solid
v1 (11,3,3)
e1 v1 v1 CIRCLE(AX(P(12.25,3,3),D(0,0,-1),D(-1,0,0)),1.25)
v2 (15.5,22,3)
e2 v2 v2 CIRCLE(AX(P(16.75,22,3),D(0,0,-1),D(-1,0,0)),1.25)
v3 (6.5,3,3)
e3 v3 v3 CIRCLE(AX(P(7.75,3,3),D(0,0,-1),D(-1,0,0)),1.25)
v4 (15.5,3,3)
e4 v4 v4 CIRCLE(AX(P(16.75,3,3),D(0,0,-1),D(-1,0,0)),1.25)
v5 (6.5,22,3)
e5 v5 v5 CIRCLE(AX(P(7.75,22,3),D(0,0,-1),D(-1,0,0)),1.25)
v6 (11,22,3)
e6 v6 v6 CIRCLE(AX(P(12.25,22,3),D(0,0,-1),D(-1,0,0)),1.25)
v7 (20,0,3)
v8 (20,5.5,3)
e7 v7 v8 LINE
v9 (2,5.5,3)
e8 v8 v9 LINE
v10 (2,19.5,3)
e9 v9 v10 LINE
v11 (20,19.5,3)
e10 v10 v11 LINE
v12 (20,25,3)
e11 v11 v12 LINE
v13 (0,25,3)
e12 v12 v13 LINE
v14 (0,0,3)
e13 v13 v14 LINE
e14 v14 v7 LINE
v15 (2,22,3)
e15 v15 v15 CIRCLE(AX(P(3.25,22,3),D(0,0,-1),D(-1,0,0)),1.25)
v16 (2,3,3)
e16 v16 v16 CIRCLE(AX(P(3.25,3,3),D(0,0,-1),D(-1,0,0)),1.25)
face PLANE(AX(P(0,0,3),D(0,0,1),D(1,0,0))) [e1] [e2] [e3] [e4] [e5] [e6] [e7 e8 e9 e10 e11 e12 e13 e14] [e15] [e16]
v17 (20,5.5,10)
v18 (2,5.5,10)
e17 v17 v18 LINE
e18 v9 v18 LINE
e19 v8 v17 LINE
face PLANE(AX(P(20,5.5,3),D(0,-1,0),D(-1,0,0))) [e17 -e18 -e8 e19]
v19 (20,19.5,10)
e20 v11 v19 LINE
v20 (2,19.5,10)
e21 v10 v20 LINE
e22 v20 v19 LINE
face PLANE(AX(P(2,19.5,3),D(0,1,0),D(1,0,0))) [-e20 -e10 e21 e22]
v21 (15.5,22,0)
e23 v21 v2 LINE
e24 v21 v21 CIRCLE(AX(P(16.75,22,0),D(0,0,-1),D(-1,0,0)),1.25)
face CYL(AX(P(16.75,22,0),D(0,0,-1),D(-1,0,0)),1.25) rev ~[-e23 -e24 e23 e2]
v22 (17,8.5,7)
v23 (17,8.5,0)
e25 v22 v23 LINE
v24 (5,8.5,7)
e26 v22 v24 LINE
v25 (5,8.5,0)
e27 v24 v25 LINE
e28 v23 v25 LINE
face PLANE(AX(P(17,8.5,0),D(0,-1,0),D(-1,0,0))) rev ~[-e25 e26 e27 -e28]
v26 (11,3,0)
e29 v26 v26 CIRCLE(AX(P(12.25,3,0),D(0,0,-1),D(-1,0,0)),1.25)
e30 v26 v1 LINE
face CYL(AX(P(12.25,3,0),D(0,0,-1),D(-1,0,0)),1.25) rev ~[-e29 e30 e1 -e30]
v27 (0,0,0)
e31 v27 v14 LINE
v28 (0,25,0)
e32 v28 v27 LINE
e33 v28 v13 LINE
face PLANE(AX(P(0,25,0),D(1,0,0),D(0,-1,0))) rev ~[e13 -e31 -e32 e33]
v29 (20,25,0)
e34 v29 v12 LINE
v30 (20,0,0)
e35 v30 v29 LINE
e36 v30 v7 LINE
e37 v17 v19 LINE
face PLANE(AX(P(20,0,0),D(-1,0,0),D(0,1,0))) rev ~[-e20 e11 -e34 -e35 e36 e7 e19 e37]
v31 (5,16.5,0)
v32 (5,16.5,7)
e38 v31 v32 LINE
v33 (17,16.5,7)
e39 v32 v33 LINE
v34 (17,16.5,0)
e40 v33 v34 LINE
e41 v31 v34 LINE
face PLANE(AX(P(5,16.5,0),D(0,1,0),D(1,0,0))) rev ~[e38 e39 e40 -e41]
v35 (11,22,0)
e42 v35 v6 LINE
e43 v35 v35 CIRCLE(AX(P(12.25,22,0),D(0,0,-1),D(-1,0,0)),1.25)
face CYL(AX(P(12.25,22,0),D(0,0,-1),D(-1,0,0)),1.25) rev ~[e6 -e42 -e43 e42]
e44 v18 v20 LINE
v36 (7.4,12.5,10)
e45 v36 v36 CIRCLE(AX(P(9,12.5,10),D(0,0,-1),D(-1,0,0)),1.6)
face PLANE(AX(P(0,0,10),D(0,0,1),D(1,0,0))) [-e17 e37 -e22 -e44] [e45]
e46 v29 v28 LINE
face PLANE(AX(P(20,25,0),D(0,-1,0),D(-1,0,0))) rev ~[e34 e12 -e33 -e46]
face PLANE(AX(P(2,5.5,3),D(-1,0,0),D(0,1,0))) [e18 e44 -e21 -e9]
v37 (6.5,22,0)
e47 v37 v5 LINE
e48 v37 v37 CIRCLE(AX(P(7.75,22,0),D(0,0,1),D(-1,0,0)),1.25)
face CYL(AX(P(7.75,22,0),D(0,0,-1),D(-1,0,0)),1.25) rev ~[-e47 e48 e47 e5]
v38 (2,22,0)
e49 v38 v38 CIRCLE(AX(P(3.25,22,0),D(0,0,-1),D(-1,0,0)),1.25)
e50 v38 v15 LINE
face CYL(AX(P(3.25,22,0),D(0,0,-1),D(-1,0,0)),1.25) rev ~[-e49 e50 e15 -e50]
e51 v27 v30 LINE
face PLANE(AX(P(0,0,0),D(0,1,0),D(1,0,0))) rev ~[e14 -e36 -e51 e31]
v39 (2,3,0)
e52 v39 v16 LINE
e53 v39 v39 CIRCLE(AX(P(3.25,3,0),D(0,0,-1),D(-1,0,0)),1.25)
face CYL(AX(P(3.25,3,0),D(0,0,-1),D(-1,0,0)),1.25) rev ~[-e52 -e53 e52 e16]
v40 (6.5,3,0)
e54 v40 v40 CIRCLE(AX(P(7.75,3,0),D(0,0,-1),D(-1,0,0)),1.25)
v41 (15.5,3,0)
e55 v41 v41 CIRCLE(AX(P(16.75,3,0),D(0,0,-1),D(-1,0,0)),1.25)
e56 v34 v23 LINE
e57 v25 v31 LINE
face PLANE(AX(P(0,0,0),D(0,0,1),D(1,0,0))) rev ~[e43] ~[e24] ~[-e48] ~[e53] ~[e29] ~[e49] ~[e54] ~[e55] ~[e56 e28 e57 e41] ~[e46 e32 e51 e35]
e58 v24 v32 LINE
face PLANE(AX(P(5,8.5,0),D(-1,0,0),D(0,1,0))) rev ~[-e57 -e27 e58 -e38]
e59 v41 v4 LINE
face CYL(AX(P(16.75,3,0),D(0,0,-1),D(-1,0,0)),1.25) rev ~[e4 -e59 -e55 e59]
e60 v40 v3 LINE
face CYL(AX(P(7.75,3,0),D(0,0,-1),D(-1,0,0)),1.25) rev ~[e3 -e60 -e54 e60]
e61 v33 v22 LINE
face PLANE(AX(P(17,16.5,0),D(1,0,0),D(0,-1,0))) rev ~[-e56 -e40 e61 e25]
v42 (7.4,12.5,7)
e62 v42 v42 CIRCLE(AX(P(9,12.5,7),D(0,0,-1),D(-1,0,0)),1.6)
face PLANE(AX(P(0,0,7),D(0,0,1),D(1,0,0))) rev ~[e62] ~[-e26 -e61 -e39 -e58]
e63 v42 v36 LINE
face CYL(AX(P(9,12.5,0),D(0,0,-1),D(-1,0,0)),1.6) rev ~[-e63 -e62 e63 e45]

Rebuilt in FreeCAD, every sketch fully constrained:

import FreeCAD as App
import Part
import Sketcher
from FreeCAD import Vector

doc = App.newDocument("Part")
body = doc.addObject("PartDesign::Body", "Body")

# Sketch on XY plane
sketch1 = body.newObject("Sketcher::SketchObject", "Sketch")
sketch1.AttachmentSupport = (doc.getObject("XY_Plane"), [""])
sketch1.MapMode = "FlatFace"
sketch1.addGeometry([
    Part.LineSegment(Vector(0, 25, 0), Vector(0, 0, 0)),  # 0
    Part.LineSegment(Vector(0, 0, 0), Vector(20, 0, 0)),  # 1
    Part.LineSegment(Vector(20, 0, 0), Vector(20, 25, 0)),  # 2
    Part.LineSegment(Vector(20, 25, 0), Vector(0, 25, 0)),  # 3
    Part.LineSegment(Vector(5, 8.5, 0), Vector(5, 16.5, 0)),  # 4
    Part.LineSegment(Vector(5, 16.5, 0), Vector(17, 16.5, 0)),  # 5
    Part.LineSegment(Vector(17, 16.5, 0), Vector(17, 8.5, 0)),  # 6
    Part.LineSegment(Vector(17, 8.5, 0), Vector(5, 8.5, 0)),  # 7
], False)
sketch1.addConstraint([
    Sketcher.Constraint("Coincident", 0, 2, 1, 1),
    Sketcher.Constraint("Coincident", 1, 2, 2, 1),
    Sketcher.Constraint("Coincident", 2, 2, 3, 1),
    Sketcher.Constraint("Coincident", 3, 2, 0, 1),
    Sketcher.Constraint("Coincident", 4, 2, 5, 1),
    Sketcher.Constraint("Coincident", 5, 2, 6, 1),
    Sketcher.Constraint("Coincident", 6, 2, 7, 1),
    Sketcher.Constraint("Coincident", 7, 2, 4, 1),
    Sketcher.Constraint("Vertical", 0),
    Sketcher.Constraint("Horizontal", 1),
    Sketcher.Constraint("Vertical", 2),
    Sketcher.Constraint("Horizontal", 3),
    Sketcher.Constraint("Vertical", 4),
    Sketcher.Constraint("Horizontal", 5),
    Sketcher.Constraint("Vertical", 6),
    Sketcher.Constraint("Horizontal", 7),
    Sketcher.Constraint("Coincident", 0, 2, -1, 1),
    Sketcher.Constraint("DistanceX", 1, 1, 1, 2, 20.0),
    Sketcher.Constraint("DistanceX", 5, 1, 5, 2, 12.0),
    Sketcher.Constraint("DistanceY", 0, 2, 0, 1, 25.0),
    Sketcher.Constraint("DistanceY", 4, 1, 4, 2, 8.0),
    Sketcher.Constraint("DistanceX", 5, 2, 2, 2, 3.0),
    Sketcher.Constraint("DistanceY", -1, 1, 4, 2, 16.5),
])
pad1 = body.newObject("PartDesign::Pad", "Pad")
pad1.Profile = sketch1
pad1.Length = 3

# Sketch on XY plane
sketch2 = body.newObject("Sketcher::SketchObject", "Sketch001")
sketch2.AttachmentSupport = (doc.getObject("XY_Plane"), [""])
sketch2.MapMode = "FlatFace"
sketch2.AttachmentOffset = App.Placement(Vector(0, 0, 3), App.Rotation())
sketch2.addGeometry([
    Part.LineSegment(Vector(2, 5.5, 0), Vector(20, 5.5, 0)),  # 0
    Part.LineSegment(Vector(20, 5.5, 0), Vector(20, 19.5, 0)),  # 1
    Part.LineSegment(Vector(20, 19.5, 0), Vector(2, 19.5, 0)),  # 2
    Part.LineSegment(Vector(2, 19.5, 0), Vector(2, 5.5, 0)),  # 3
    Part.LineSegment(Vector(5, 16.5, 0), Vector(17, 16.5, 0)),  # 4
    Part.LineSegment(Vector(17, 16.5, 0), Vector(17, 8.5, 0)),  # 5
    Part.LineSegment(Vector(17, 8.5, 0), Vector(5, 8.5, 0)),  # 6
    Part.LineSegment(Vector(5, 8.5, 0), Vector(5, 16.5, 0)),  # 7
], False)
sketch2.addConstraint([
    Sketcher.Constraint("Coincident", 0, 2, 1, 1),
    Sketcher.Constraint("Coincident", 1, 2, 2, 1),
    Sketcher.Constraint("Coincident", 2, 2, 3, 1),
    Sketcher.Constraint("Coincident", 3, 2, 0, 1),
    Sketcher.Constraint("Coincident", 4, 2, 5, 1),
    Sketcher.Constraint("Coincident", 5, 2, 6, 1),
    Sketcher.Constraint("Coincident", 6, 2, 7, 1),
    Sketcher.Constraint("Coincident", 7, 2, 4, 1),
    Sketcher.Constraint("Horizontal", 0),
    Sketcher.Constraint("Vertical", 1),
    Sketcher.Constraint("Horizontal", 2),
    Sketcher.Constraint("Vertical", 3),
    Sketcher.Constraint("Horizontal", 4),
    Sketcher.Constraint("Vertical", 5),
    Sketcher.Constraint("Horizontal", 6),
    Sketcher.Constraint("Vertical", 7),
    Sketcher.Constraint("DistanceX", 0, 1, 0, 2, 18.0),
    Sketcher.Constraint("DistanceX", 4, 1, 4, 2, 12.0),
    Sketcher.Constraint("DistanceY", 1, 1, 1, 2, 14.0),
    Sketcher.Constraint("DistanceY", 5, 2, 5, 1, 8.0),
    Sketcher.Constraint("DistanceX", -1, 1, 0, 2, 20.0),
    Sketcher.Constraint("DistanceX", -1, 1, 4, 2, 17.0),
    Sketcher.Constraint("DistanceY", 4, 2, 1, 2, 3.0),
    Sketcher.Constraint("DistanceY", -1, 1, 0, 2, 5.5),
])
pad2 = body.newObject("PartDesign::Pad", "Pad001")
pad2.Profile = sketch2
pad2.Length = 7

# Sketch on XY plane
sketch3 = body.newObject("Sketcher::SketchObject", "Sketch002")
sketch3.AttachmentSupport = (doc.getObject("XY_Plane"), [""])
sketch3.MapMode = "FlatFace"
sketch3.AttachmentOffset = App.Placement(Vector(0, 0, 10), App.Rotation())
sketch3.addGeometry([
    Part.LineSegment(Vector(5, 8.5, 0), Vector(17, 8.5, 0)),
    Part.LineSegment(Vector(17, 8.5, 0), Vector(17, 16.5, 0)),
    Part.LineSegment(Vector(17, 16.5, 0), Vector(5, 16.5, 0)),
    Part.LineSegment(Vector(5, 16.5, 0), Vector(5, 8.5, 0)),
], False)
sketch3.addConstraint([
    Sketcher.Constraint("Coincident", 0, 2, 1, 1),
    Sketcher.Constraint("Coincident", 1, 2, 2, 1),
    Sketcher.Constraint("Coincident", 2, 2, 3, 1),
    Sketcher.Constraint("Coincident", 3, 2, 0, 1),
    Sketcher.Constraint("Horizontal", 0),
    Sketcher.Constraint("Vertical", 1),
    Sketcher.Constraint("Horizontal", 2),
    Sketcher.Constraint("Vertical", 3),
    Sketcher.Constraint("DistanceX", 0, 1, 0, 2, 12.0),
    Sketcher.Constraint("DistanceY", 1, 1, 1, 2, 8.0),
    Sketcher.Constraint("DistanceX", -1, 1, 0, 2, 17.0),
    Sketcher.Constraint("DistanceY", -1, 1, 0, 2, 8.5),
])
pad3 = body.newObject("PartDesign::Pad", "Pad002")
pad3.Profile = sketch3
pad3.Length = 3
pad3.Reversed = True

# Sketch on XY plane
sketch4 = body.newObject("Sketcher::SketchObject", "Sketch003")
sketch4.AttachmentSupport = (doc.getObject("XY_Plane"), [""])
sketch4.MapMode = "FlatFace"
sketch4.addGeometry([
    Part.Circle(Vector(16.75, 22, 0), Vector(0, 0, 1), 1.25),  # 0
    Part.Circle(Vector(12.25, 22, 0), Vector(0, 0, 1), 1.25),  # 1
    Part.Circle(Vector(7.75, 22, 0), Vector(0, 0, 1), 1.25),  # 2
    Part.Circle(Vector(3.25, 22, 0), Vector(0, 0, 1), 1.25),  # 3
    Part.Circle(Vector(16.75, 3, 0), Vector(0, 0, 1), 1.25),  # 4
    Part.Circle(Vector(12.25, 3, 0), Vector(0, 0, 1), 1.25),  # 5
    Part.Circle(Vector(7.75, 3, 0), Vector(0, 0, 1), 1.25),  # 6
    Part.Circle(Vector(3.25, 3, 0), Vector(0, 0, 1), 1.25),  # 7
    Part.Circle(Vector(9, 12.5, 0), Vector(0, 0, 1), 1.6),  # 8
], False)
sketch4.addConstraint([
    Sketcher.Constraint("Equal", 0, 1),
    Sketcher.Constraint("Equal", 1, 2),
    Sketcher.Constraint("Equal", 2, 3),
    Sketcher.Constraint("Equal", 3, 4),
    Sketcher.Constraint("Equal", 4, 5),
    Sketcher.Constraint("Equal", 5, 6),
    Sketcher.Constraint("Equal", 6, 7),
    Sketcher.Constraint("Horizontal", 0, 3, 1, 3),
    Sketcher.Constraint("Horizontal", 1, 3, 2, 3),
    Sketcher.Constraint("Horizontal", 2, 3, 3, 3),
    Sketcher.Constraint("Horizontal", 4, 3, 5, 3),
    Sketcher.Constraint("Horizontal", 5, 3, 6, 3),
    Sketcher.Constraint("Horizontal", 6, 3, 7, 3),
    Sketcher.Constraint("Vertical", 0, 3, 4, 3),
    Sketcher.Constraint("Vertical", 1, 3, 5, 3),
    Sketcher.Constraint("Vertical", 2, 3, 6, 3),
    Sketcher.Constraint("Vertical", 3, 3, 7, 3),
    Sketcher.Constraint("Diameter", 0, 2.5),
    Sketcher.Constraint("Diameter", 8, 3.2),
    Sketcher.Constraint("DistanceY", -1, 1, 4, 3, 3.0),
    Sketcher.Constraint("DistanceX", 1, 3, 0, 3, 4.5),
    Sketcher.Constraint("DistanceX", 2, 3, 1, 3, 4.5),
    Sketcher.Constraint("DistanceX", 3, 3, 2, 3, 4.5),
    Sketcher.Constraint("DistanceY", -1, 1, 0, 3, 22.0),
    Sketcher.Constraint("DistanceX", -1, 1, 8, 3, 9.0),
    Sketcher.Constraint("DistanceY", -1, 1, 8, 3, 12.5),
    Sketcher.Constraint("DistanceX", -1, 1, 0, 3, 16.75),
])
pocket1 = body.newObject("PartDesign::Pocket", "Pocket")
pocket1.Profile = sketch4
pocket1.Length = 10
pocket1.Reversed = True

doc.recompute()
